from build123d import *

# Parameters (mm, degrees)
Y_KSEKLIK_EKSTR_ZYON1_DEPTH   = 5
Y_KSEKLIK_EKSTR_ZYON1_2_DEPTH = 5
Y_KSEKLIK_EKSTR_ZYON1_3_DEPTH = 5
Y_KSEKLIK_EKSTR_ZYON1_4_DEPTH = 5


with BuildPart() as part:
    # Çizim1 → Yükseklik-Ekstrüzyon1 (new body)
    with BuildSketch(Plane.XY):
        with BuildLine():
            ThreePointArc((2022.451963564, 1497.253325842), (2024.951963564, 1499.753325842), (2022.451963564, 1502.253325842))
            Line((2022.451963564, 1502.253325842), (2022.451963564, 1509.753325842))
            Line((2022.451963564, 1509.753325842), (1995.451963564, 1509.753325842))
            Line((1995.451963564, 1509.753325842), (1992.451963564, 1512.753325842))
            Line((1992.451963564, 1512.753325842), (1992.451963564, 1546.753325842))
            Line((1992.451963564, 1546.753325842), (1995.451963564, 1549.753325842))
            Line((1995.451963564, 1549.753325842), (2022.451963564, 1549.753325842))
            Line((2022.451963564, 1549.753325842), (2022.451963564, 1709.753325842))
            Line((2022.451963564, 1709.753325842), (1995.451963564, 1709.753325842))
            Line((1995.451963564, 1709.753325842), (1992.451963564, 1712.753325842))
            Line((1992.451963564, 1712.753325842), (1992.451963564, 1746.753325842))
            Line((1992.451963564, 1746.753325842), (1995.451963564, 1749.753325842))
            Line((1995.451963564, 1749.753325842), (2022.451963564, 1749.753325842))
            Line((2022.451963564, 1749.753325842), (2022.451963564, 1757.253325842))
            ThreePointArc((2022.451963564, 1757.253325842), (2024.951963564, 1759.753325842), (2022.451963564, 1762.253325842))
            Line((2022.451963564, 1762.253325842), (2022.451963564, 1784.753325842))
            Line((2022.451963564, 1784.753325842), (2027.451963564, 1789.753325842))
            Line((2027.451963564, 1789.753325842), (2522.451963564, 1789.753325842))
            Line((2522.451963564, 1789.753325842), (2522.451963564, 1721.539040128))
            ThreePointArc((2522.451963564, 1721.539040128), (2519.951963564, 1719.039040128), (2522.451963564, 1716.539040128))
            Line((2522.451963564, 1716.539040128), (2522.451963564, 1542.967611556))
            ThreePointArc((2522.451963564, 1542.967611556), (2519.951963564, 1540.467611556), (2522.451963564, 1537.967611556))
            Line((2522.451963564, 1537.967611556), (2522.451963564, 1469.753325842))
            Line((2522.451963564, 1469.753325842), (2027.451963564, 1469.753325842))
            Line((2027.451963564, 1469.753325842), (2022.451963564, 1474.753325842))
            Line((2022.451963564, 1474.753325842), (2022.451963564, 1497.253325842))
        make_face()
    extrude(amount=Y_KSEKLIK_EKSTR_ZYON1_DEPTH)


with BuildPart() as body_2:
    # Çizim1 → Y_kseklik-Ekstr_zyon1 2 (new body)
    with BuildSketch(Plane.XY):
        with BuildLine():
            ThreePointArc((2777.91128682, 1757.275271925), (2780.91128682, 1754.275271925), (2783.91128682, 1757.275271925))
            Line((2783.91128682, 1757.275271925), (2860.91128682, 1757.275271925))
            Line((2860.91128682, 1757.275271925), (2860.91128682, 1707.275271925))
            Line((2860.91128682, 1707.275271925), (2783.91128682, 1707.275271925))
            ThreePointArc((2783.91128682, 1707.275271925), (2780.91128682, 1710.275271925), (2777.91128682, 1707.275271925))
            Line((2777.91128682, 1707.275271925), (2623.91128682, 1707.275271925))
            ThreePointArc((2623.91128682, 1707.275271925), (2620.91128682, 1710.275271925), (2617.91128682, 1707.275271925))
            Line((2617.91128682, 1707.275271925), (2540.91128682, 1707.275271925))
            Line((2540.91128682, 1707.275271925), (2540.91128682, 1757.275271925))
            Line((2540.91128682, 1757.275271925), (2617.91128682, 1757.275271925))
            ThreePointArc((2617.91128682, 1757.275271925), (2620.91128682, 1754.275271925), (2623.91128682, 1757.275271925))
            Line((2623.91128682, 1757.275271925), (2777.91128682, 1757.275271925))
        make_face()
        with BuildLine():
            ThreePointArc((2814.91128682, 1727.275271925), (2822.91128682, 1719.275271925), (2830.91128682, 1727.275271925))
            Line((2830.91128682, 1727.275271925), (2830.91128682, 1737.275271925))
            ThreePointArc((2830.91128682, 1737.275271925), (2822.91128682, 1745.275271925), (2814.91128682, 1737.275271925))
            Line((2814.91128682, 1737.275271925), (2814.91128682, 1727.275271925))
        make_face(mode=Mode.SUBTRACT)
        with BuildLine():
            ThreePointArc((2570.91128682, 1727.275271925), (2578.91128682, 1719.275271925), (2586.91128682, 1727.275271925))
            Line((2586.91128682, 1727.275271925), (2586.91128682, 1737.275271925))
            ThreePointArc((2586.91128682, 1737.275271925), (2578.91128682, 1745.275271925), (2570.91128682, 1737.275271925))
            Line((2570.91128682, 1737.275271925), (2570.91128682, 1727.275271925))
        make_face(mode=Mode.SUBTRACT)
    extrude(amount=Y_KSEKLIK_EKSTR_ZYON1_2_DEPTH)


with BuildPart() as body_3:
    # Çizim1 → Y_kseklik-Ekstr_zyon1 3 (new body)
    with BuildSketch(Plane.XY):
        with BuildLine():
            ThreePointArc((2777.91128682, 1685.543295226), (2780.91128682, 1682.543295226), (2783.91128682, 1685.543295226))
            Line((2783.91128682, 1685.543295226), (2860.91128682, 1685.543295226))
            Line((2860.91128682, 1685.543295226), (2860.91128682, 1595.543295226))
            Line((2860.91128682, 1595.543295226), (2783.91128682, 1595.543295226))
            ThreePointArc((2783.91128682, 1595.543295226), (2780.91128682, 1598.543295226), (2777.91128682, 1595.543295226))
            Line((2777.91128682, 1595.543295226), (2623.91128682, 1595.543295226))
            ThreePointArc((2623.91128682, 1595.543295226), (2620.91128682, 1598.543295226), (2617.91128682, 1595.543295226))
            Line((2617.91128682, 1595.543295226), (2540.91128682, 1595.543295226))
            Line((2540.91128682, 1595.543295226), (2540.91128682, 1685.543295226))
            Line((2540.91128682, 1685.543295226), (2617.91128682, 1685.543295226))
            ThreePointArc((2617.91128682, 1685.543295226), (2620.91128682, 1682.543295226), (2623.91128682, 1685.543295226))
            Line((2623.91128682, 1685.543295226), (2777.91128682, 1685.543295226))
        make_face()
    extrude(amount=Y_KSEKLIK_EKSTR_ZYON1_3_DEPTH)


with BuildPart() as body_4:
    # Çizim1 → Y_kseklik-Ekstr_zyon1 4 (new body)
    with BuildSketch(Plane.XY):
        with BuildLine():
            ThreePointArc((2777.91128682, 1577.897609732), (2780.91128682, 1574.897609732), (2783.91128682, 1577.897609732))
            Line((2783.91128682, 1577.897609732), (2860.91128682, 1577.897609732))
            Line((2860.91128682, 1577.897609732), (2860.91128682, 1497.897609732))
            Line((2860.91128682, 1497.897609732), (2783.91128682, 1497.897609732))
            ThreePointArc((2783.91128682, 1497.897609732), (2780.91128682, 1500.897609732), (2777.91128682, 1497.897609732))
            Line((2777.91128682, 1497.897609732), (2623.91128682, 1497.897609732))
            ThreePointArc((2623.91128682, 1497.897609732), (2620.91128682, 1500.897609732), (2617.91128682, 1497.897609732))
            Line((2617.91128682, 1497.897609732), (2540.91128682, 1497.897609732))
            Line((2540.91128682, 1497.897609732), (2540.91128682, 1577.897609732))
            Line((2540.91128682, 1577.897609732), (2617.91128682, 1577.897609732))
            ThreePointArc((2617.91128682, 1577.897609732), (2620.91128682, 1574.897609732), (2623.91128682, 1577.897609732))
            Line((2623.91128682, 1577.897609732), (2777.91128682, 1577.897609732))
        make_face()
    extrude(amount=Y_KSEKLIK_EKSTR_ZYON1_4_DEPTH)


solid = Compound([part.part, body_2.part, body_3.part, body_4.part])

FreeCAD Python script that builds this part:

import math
import FreeCAD as App
import Part
import Sketcher
Q = App.Units.Quantity

doc = App.newDocument("Part")
body = doc.addObject("PartDesign::Body", "Body")

sketch1 = body.newObject("Sketcher::SketchObject", "Sketch")
sketch1.AttachmentSupport = (doc.getObject("XY_Plane"), [""])
sketch1.MapMode = "FlatFace"
sketch1.addGeometry([
    Part.ArcOfCircle(Part.Circle(App.Vector(2022.5, 1499.8, 0), App.Vector(0, 0, 1), 2.5), math.radians(-90), math.radians(90)),
    Part.LineSegment(App.Vector(2022.5, 1497.3, 0), App.Vector(2022.5, 1474.8, 0)),
    Part.LineSegment(App.Vector(2022.5, 1474.8, 0), App.Vector(2027.5, 1469.8, 0)),
    Part.LineSegment(App.Vector(2027.5, 1469.8, 0), App.Vector(2522.5, 1469.8, 0)),
    Part.LineSegment(App.Vector(2522.5, 1469.8, 0), App.Vector(2522.5, 1538, 0)),
    Part.ArcOfCircle(Part.Circle(App.Vector(2522.5, 1540.5, 0), App.Vector(0, 0, 1), 2.5), math.radians(90), math.radians(270)),
    Part.LineSegment(App.Vector(2522.5, 1543, 0), App.Vector(2522.5, 1716.5, 0)),
    Part.ArcOfCircle(Part.Circle(App.Vector(2522.5, 1719, 0), App.Vector(0, 0, 1), 2.5), math.radians(90), math.radians(270)),
    Part.LineSegment(App.Vector(2522.5, 1721.5, 0), App.Vector(2522.5, 1789.8, 0)),
    Part.LineSegment(App.Vector(2522.5, 1789.8, 0), App.Vector(2027.5, 1789.8, 0)),
    Part.LineSegment(App.Vector(2027.5, 1789.8, 0), App.Vector(2022.5, 1784.8, 0)),
    Part.LineSegment(App.Vector(2022.5, 1784.8, 0), App.Vector(2022.5, 1762.3, 0)),
    Part.ArcOfCircle(Part.Circle(App.Vector(2022.5, 1759.8, 0), App.Vector(0, 0, 1), 2.5), math.radians(-90), math.radians(90)),
    Part.LineSegment(App.Vector(2022.5, 1757.3, 0), App.Vector(2022.5, 1749.8, 0)),
    Part.LineSegment(App.Vector(2022.5, 1749.8, 0), App.Vector(1995.5, 1749.8, 0)),
    Part.LineSegment(App.Vector(1995.5, 1749.8, 0), App.Vector(1992.5, 1746.8, 0)),
    Part.LineSegment(App.Vector(1992.5, 1746.8, 0), App.Vector(1992.5, 1712.8, 0)),
    Part.LineSegment(App.Vector(1992.5, 1712.8, 0), App.Vector(1995.5, 1709.8, 0)),
    Part.LineSegment(App.Vector(1995.5, 1709.8, 0), App.Vector(2022.5, 1709.8, 0)),
    Part.LineSegment(App.Vector(2022.5, 1709.8, 0), App.Vector(2022.5, 1549.8, 0)),
    Part.LineSegment(App.Vector(2022.5, 1549.8, 0), App.Vector(1995.5, 1549.8, 0)),
    Part.LineSegment(App.Vector(1995.5, 1549.8, 0), App.Vector(1992.5, 1546.8, 0)),
    Part.LineSegment(App.Vector(1992.5, 1546.8, 0), App.Vector(1992.5, 1512.8, 0)),
    Part.LineSegment(App.Vector(1992.5, 1512.8, 0), App.Vector(1995.5, 1509.8, 0)),
    Part.LineSegment(App.Vector(1995.5, 1509.8, 0), App.Vector(2022.5, 1509.8, 0)),
    Part.LineSegment(App.Vector(2022.5, 1509.8, 0), App.Vector(2022.5, 1502.3, 0)),
], False)
sketch1.addConstraint([
    Sketcher.Constraint("Coincident", 0, 1, 1, 1),
    Sketcher.Constraint("Coincident", 1, 2, 2, 1),
    Sketcher.Constraint("Coincident", 2, 2, 3, 1),
    Sketcher.Constraint("Coincident", 3, 2, 4, 1),
    Sketcher.Constraint("Coincident", 4, 2, 5, 2),
    Sketcher.Constraint("Coincident", 5, 1, 6, 1),
    Sketcher.Constraint("Coincident", 6, 2, 7, 2),
    Sketcher.Constraint("Coincident", 7, 1, 8, 1),
    Sketcher.Constraint("Coincident", 8, 2, 9, 1),
    Sketcher.Constraint("Coincident", 9, 2, 10, 1),
    Sketcher.Constraint("Coincident", 10, 2, 11, 1),
    Sketcher.Constraint("Coincident", 11, 2, 12, 2),
    Sketcher.Constraint("Coincident", 12, 1, 13, 1),
    Sketcher.Constraint("Coincident", 13, 2, 14, 1),
    Sketcher.Constraint("Coincident", 14, 2, 15, 1),
    Sketcher.Constraint("Coincident", 15, 2, 16, 1),
    Sketcher.Constraint("Coincident", 16, 2, 17, 1),
    Sketcher.Constraint("Coincident", 17, 2, 18, 1),
    Sketcher.Constraint("Coincident", 18, 2, 19, 1),
    Sketcher.Constraint("Coincident", 19, 2, 20, 1),
    Sketcher.Constraint("Coincident", 20, 2, 21, 1),
    Sketcher.Constraint("Coincident", 21, 2, 22, 1),
    Sketcher.Constraint("Coincident", 22, 2, 23, 1),
    Sketcher.Constraint("Coincident", 23, 2, 24, 1),
    Sketcher.Constraint("Coincident", 24, 2, 25, 1),
    Sketcher.Constraint("Coincident", 25, 2, 0, 2),
    Sketcher.Constraint("Vertical", 1),
    Sketcher.Constraint("Horizontal", 3),
    Sketcher.Constraint("Vertical", 4),
    Sketcher.Constraint("Vertical", 6),
    Sketcher.Constraint("Vertical", 8),
    Sketcher.Constraint("Horizontal", 9),
    Sketcher.Constraint("Vertical", 11),
    Sketcher.Constraint("Vertical", 13),
    Sketcher.Constraint("Horizontal", 14),
    Sketcher.Constraint("Vertical", 16),
    Sketcher.Constraint("Horizontal", 18),
    Sketcher.Constraint("Vertical", 19),
    Sketcher.Constraint("Horizontal", 20),
    Sketcher.Constraint("Vertical", 22),
    Sketcher.Constraint("Horizontal", 24),
    Sketcher.Constraint("Vertical", 25),
    Sketcher.Constraint("Equal", 0, 5),
    Sketcher.Constraint("Equal", 5, 7),
    Sketcher.Constraint("Equal", 7, 12),
    Sketcher.Constraint("Perpendicular", 2, 10),
    Sketcher.Constraint("Parallel", 10, 15),
    Sketcher.Constraint("Perpendicular", 15, 17),
    Sketcher.Constraint("Perpendicular", 17, 21),
    Sketcher.Constraint("Perpendicular", 21, 23),
    Sketcher.Constraint("Vertical", 5, 3, 7, 3),
    Sketcher.Constraint("Vertical", 0, 3, 12, 3),
    Sketcher.Constraint("Vertical", 12, 3, 0, 1),
    Sketcher.Constraint("Vertical", 7, 3, 3, 2),
    Sketcher.Constraint("Vertical", 4, 2, 5, 1),
    Sketcher.Constraint("Vertical", 6, 2, 7, 1),
    Sketcher.Constraint("Vertical", 2, 2, 9, 2),
    Sketcher.Constraint("Vertical", 1, 2, 10, 2),
    Sketcher.Constraint("Vertical", 11, 2, 12, 1),
    Sketcher.Constraint("Vertical", 14, 2, 17, 2),
    Sketcher.Constraint("Vertical", 13, 2, 18, 2),
    Sketcher.Constraint("Vertical", 17, 2, 20, 2),
    Sketcher.Constraint("Vertical", 16, 2, 21, 2),
    Sketcher.Constraint("Vertical", 20, 2, 23, 2),
    Sketcher.Constraint("Vertical", 19, 2, 24, 2),
    Sketcher.Constraint("Equal", 4, 8),
    Sketcher.Constraint("Equal", 1, 11),
    Sketcher.Constraint("Equal", 16, 22),
    Sketcher.Constraint("Equal", 13, 25),
    Sketcher.Constraint("Equal", 2, 10),
    Sketcher.Constraint("Radius", 0, Q("2.5 mm")),
    Sketcher.Constraint("DistanceX", 3, 1, 3, 2, Q("495 mm")),
    Sketcher.Constraint("DistanceX", 14, 2, 14, 1, Q("27 mm")),
    Sketcher.Constraint("DistanceY", 16, 2, 16, 1, Q("34 mm")),
    Sketcher.Constraint("DistanceY", 19, 2, 19, 1, Q("160 mm")),
    Sketcher.Constraint("DistanceY", 1, 2, 1, 1, Q("22.5 mm")),
    Sketcher.Constraint("DistanceY", 13, 2, 13, 1, Q("7.5 mm")),
    Sketcher.Constraint("DistanceX", 0, 3, 5, 3, Q("500 mm")),
    Sketcher.Constraint("DistanceY", 0, 3, 12, 3, Q("260 mm")),
    Sketcher.Constraint("DistanceY", 6, 1, 6, 2, Q("173.571429 mm")),
    Sketcher.Constraint("DistanceY", -1, 1, 5, 3, Q("1540.467612 mm")),
    Sketcher.Constraint("DistanceX", -1, 1, 0, 3, Q("2022.451964 mm")),
])
pad1 = body.newObject("PartDesign::Pad", "Pad")
pad1.Profile = sketch1
pad1.Length = 5
body2 = doc.addObject("PartDesign::Body", "Body001")

sketch2 = body2.newObject("Sketcher::SketchObject", "Sketch001")
sketch2.AttachmentSupport = (doc.getObject("XY_Plane001"), [""])
sketch2.MapMode = "FlatFace"
sketch2.addGeometry([
    Part.ArcOfCircle(Part.Circle(App.Vector(2780.9, 1757.3, 0), App.Vector(0, 0, 1), 3), math.radians(180), math.radians(360)),
    Part.LineSegment(App.Vector(2777.9, 1757.3, 0), App.Vector(2623.9, 1757.3, 0)),
    Part.ArcOfCircle(Part.Circle(App.Vector(2620.9, 1757.3, 0), App.Vector(0, 0, 1), 3), math.radians(180), math.radians(360)),
    Part.LineSegment(App.Vector(2617.9, 1757.3, 0), App.Vector(2540.9, 1757.3, 0)),
    Part.LineSegment(App.Vector(2540.9, 1757.3, 0), App.Vector(2540.9, 1707.3, 0)),
    Part.LineSegment(App.Vector(2540.9, 1707.3, 0), App.Vector(2617.9, 1707.3, 0)),
    Part.ArcOfCircle(Part.Circle(App.Vector(2620.9, 1707.3, 0), App.Vector(0, 0, 1), 3), math.radians(0), math.radians(180)),
    Part.LineSegment(App.Vector(2623.9, 1707.3, 0), App.Vector(2777.9, 1707.3, 0)),
    Part.ArcOfCircle(Part.Circle(App.Vector(2780.9, 1707.3, 0), App.Vector(0, 0, 1), 3), math.radians(0), math.radians(180)),
    Part.LineSegment(App.Vector(2783.9, 1707.3, 0), App.Vector(2860.9, 1707.3, 0)),
    Part.LineSegment(App.Vector(2860.9, 1707.3, 0), App.Vector(2860.9, 1757.3, 0)),
    Part.LineSegment(App.Vector(2860.9, 1757.3, 0), App.Vector(2783.9, 1757.3, 0)),
    Part.LineSegment(App.Vector(2814.9, 1727.3, 0), App.Vector(2814.9, 1737.3, 0)),
    Part.ArcOfCircle(Part.Circle(App.Vector(2822.9, 1737.3, 0), App.Vector(0, 0, 1), 8), math.radians(0), math.radians(180)),
    Part.LineSegment(App.Vector(2830.9, 1737.3, 0), App.Vector(2830.9, 1727.3, 0)),
    Part.ArcOfCircle(Part.Circle(App.Vector(2822.9, 1727.3, 0), App.Vector(0, 0, 1), 8), math.radians(180), math.radians(360)),
    Part.LineSegment(App.Vector(2570.9, 1727.3, 0), App.Vector(2570.9, 1737.3, 0)),
    Part.ArcOfCircle(Part.Circle(App.Vector(2578.9, 1737.3, 0), App.Vector(0, 0, 1), 8), math.radians(0), math.radians(180)),
    Part.LineSegment(App.Vector(2586.9, 1737.3, 0), App.Vector(2586.9, 1727.3, 0)),
    Part.ArcOfCircle(Part.Circle(App.Vector(2578.9, 1727.3, 0), App.Vector(0, 0, 1), 8), math.radians(180), math.radians(360)),
], False)
sketch2.addConstraint([
    Sketcher.Constraint("Coincident", 0, 1, 1, 1),
    Sketcher.Constraint("Coincident", 1, 2, 2, 2),
    Sketcher.Constraint("Coincident", 2, 1, 3, 1),
    Sketcher.Constraint("Coincident", 3, 2, 4, 1),
    Sketcher.Constraint("Coincident", 4, 2, 5, 1),
    Sketcher.Constraint("Coincident", 5, 2, 6, 2),
    Sketcher.Constraint("Coincident", 6, 1, 7, 1),
    Sketcher.Constraint("Coincident", 7, 2, 8, 2),
    Sketcher.Constraint("Coincident", 8, 1, 9, 1),
    Sketcher.Constraint("Coincident", 9, 2, 10, 1),
    Sketcher.Constraint("Coincident", 10, 2, 11, 1),
    Sketcher.Constraint("Coincident", 11, 2, 0, 2),
    Sketcher.Constraint("Tangent", 12, 2, 13, 2),
    Sketcher.Constraint("Tangent", 13, 1, 14, 1),
    Sketcher.Constraint("Tangent", 14, 2, 15, 2),
    Sketcher.Constraint("Tangent", 15, 1, 12, 1),
    Sketcher.Constraint("Tangent", 16, 2, 17, 2),
    Sketcher.Constraint("Tangent", 17, 1, 18, 1),
    Sketcher.Constraint("Tangent", 18, 2, 19, 2),
    Sketcher.Constraint("Tangent", 19, 1, 16, 1),
    Sketcher.Constraint("Horizontal", 1),
    Sketcher.Constraint("Horizontal", 3),
    Sketcher.Constraint("Vertical", 4),
    Sketcher.Constraint("Horizontal", 5),
    Sketcher.Constraint("Horizontal", 7),
    Sketcher.Constraint("Horizontal", 9),
    Sketcher.Constraint("Vertical", 10),
    Sketcher.Constraint("Horizontal", 11),
    Sketcher.Constraint("Vertical", 12),
    Sketcher.Constraint("Vertical", 14),
    Sketcher.Constraint("Vertical", 16),
    Sketcher.Constraint("Vertical", 18),
    Sketcher.Constraint("Equal", 0, 2),
    Sketcher.Constraint("Equal", 2, 6),
    Sketcher.Constraint("Equal", 6, 8),
    Sketcher.Constraint("Equal", 15, 17),
    Sketcher.Constraint("Horizontal", 0, 3, 2, 3),
    Sketcher.Constraint("Horizontal", 6, 3, 8, 3),
    Sketcher.Constraint("Horizontal", 13, 3, 17, 3),
    Sketcher.Constraint("Horizontal", 15, 3, 19, 3),
    Sketcher.Constraint("Horizontal", 2, 3, 0, 1),
    Sketcher.Constraint("Horizontal", 1, 2, 2, 1),
    Sketcher.Constraint("Horizontal", 8, 3, 4, 2),
    Sketcher.Constraint("Horizontal", 5, 2, 6, 1),
    Sketcher.Constraint("Horizontal", 7, 2, 8, 1),
    Sketcher.Constraint("Horizontal", 3, 2, 10, 2),
    Sketcher.Constraint("Vertical", 2, 3, 6, 3),
    Sketcher.Constraint("Vertical", 0, 3, 8, 3),
    Sketcher.Constraint("Equal", 5, 9),
    Sketcher.Constraint("Radius", 0, Q("3 mm")),
    Sketcher.Constraint("Radius", 13, Q("8 mm")),
    Sketcher.Constraint("DistanceX", 1, 2, 1, 1, Q("154 mm")),
    Sketcher.Constraint("DistanceX", 3, 2, 3, 1, Q("77 mm")),
    Sketcher.Constraint("DistanceY", 4, 2, 4, 1, Q("50 mm")),
    Sketcher.Constraint("DistanceY", 12, 1, 12, 2, Q("10 mm")),
    Sketcher.Constraint("DistanceX", 0, 3, 13, 3, Q("42 mm")),
    Sketcher.Constraint("DistanceY", 13, 3, 0, 3, Q("20 mm")),
    Sketcher.Constraint("DistanceX", 17, 3, 2, 3, Q("42 mm")),
    Sketcher.Constraint("DistanceY", -1, 1, 0, 3, Q("1757.275272 mm")),
    Sketcher.Constraint("DistanceX", -1, 1, 0, 3, Q("2780.911287 mm")),
])
pad2 = body2.newObject("PartDesign::Pad", "Pad001")
pad2.Profile = sketch2
pad2.Length = 5
body3 = doc.addObject("PartDesign::Body", "Body002")

sketch3 = body3.newObject("Sketcher::SketchObject", "Sketch002")
sketch3.AttachmentSupport = (doc.getObject("XY_Plane002"), [""])
sketch3.MapMode = "FlatFace"
sketch3.addGeometry([
    Part.ArcOfCircle(Part.Circle(App.Vector(2780.9, 1685.5, 0), App.Vector(0, 0, 1), 3), math.radians(180), math.radians(360)),
    Part.LineSegment(App.Vector(2777.9, 1685.5, 0), App.Vector(2623.9, 1685.5, 0)),
    Part.ArcOfCircle(Part.Circle(App.Vector(2620.9, 1685.5, 0), App.Vector(0, 0, 1), 3), math.radians(180), math.radians(360)),
    Part.LineSegment(App.Vector(2617.9, 1685.5, 0), App.Vector(2540.9, 1685.5, 0)),
    Part.LineSegment(App.Vector(2540.9, 1685.5, 0), App.Vector(2540.9, 1595.5, 0)),
    Part.LineSegment(App.Vector(2540.9, 1595.5, 0), App.Vector(2617.9, 1595.5, 0)),
    Part.ArcOfCircle(Part.Circle(App.Vector(2620.9, 1595.5, 0), App.Vector(0, 0, 1), 3), math.radians(0), math.radians(180)),
    Part.LineSegment(App.Vector(2623.9, 1595.5, 0), App.Vector(2777.9, 1595.5, 0)),
    Part.ArcOfCircle(Part.Circle(App.Vector(2780.9, 1595.5, 0), App.Vector(0, 0, 1), 3), math.radians(0), math.radians(180)),
    Part.LineSegment(App.Vector(2783.9, 1595.5, 0), App.Vector(2860.9, 1595.5, 0)),
    Part.LineSegment(App.Vector(2860.9, 1595.5, 0), App.Vector(2860.9, 1685.5, 0)),
    Part.LineSegment(App.Vector(2860.9, 1685.5, 0), App.Vector(2783.9, 1685.5, 0)),
], False)
sketch3.addConstraint([
    Sketcher.Constraint("Coincident", 0, 1, 1, 1),
    Sketcher.Constraint("Coincident", 1, 2, 2, 2),
    Sketcher.Constraint("Coincident", 2, 1, 3, 1),
    Sketcher.Constraint("Coincident", 3, 2, 4, 1),
    Sketcher.Constraint("Coincident", 4, 2, 5, 1),
    Sketcher.Constraint("Coincident", 5, 2, 6, 2),
    Sketcher.Constraint("Coincident", 6, 1, 7, 1),
    Sketcher.Constraint("Coincident", 7, 2, 8, 2),
    Sketcher.Constraint("Coincident", 8, 1, 9, 1),
    Sketcher.Constraint("Coincident", 9, 2, 10, 1),
    Sketcher.Constraint("Coincident", 10, 2, 11, 1),
    Sketcher.Constraint("Coincident", 11, 2, 0, 2),
    Sketcher.Constraint("Horizontal", 1),
    Sketcher.Constraint("Horizontal", 3),
    Sketcher.Constraint("Vertical", 4),
    Sketcher.Constraint("Horizontal", 5),
    Sketcher.Constraint("Horizontal", 7),
    Sketcher.Constraint("Horizontal", 9),
    Sketcher.Constraint("Vertical", 10),
    Sketcher.Constraint("Horizontal", 11),
    Sketcher.Constraint("Equal", 0, 2),
    Sketcher.Constraint("Equal", 2, 6),
    Sketcher.Constraint("Equal", 6, 8),
    Sketcher.Constraint("Horizontal", 0, 3, 2, 3),
    Sketcher.Constraint("Horizontal", 6, 3, 8, 3),
    Sketcher.Constraint("Horizontal", 2, 3, 0, 1),
    Sketcher.Constraint("Horizontal", 1, 2, 2, 1),
    Sketcher.Constraint("Horizontal", 8, 3, 4, 2),
    Sketcher.Constraint("Horizontal", 5, 2, 6, 1),
    Sketcher.Constraint("Horizontal", 7, 2, 8, 1),
    Sketcher.Constraint("Horizontal", 3, 2, 10, 2),
    Sketcher.Constraint("Vertical", 2, 3, 6, 3),
    Sketcher.Constraint("Vertical", 0, 3, 8, 3),
    Sketcher.Constraint("Equal", 5, 9),
    Sketcher.Constraint("Radius", 0, Q("3 mm")),
    Sketcher.Constraint("DistanceX", 1, 2, 1, 1, Q("154 mm")),
    Sketcher.Constraint("DistanceX", 3, 2, 3, 1, Q("77 mm")),
    Sketcher.Constraint("DistanceY", 4, 2, 4, 1, Q("90 mm")),
    Sketcher.Constraint("DistanceX", -1, 1, 0, 3, Q("2780.911287 mm")),
    Sketcher.Constraint("DistanceY", -1, 1, 0, 3, Q("1685.543295 mm")),
])
pad3 = body3.newObject("PartDesign::Pad", "Pad002")
pad3.Profile = sketch3
pad3.Length = 5
body4 = doc.addObject("PartDesign::Body", "Body003")

sketch4 = body4.newObject("Sketcher::SketchObject", "Sketch003")
sketch4.AttachmentSupport = (doc.getObject("XY_Plane003"), [""])
sketch4.MapMode = "FlatFace"
sketch4.addGeometry([
    Part.ArcOfCircle(Part.Circle(App.Vector(2780.9, 1577.9, 0), App.Vector(0, 0, 1), 3), math.radians(180), math.radians(360)),
    Part.LineSegment(App.Vector(2777.9, 1577.9, 0), App.Vector(2623.9, 1577.9, 0)),
    Part.ArcOfCircle(Part.Circle(App.Vector(2620.9, 1577.9, 0), App.Vector(0, 0, 1), 3), math.radians(180), math.radians(360)),
    Part.LineSegment(App.Vector(2617.9, 1577.9, 0), App.Vector(2540.9, 1577.9, 0)),
    Part.LineSegment(App.Vector(2540.9, 1577.9, 0), App.Vector(2540.9, 1497.9, 0)),
    Part.LineSegment(App.Vector(2540.9, 1497.9, 0), App.Vector(2617.9, 1497.9, 0)),
    Part.ArcOfCircle(Part.Circle(App.Vector(2620.9, 1497.9, 0), App.Vector(0, 0, 1), 3), math.radians(0), math.radians(180)),
    Part.LineSegment(App.Vector(2623.9, 1497.9, 0), App.Vector(2777.9, 1497.9, 0)),
    Part.ArcOfCircle(Part.Circle(App.Vector(2780.9, 1497.9, 0), App.Vector(0, 0, 1), 3), math.radians(0), math.radians(180)),
    Part.LineSegment(App.Vector(2783.9, 1497.9, 0), App.Vector(2860.9, 1497.9, 0)),
    Part.LineSegment(App.Vector(2860.9, 1497.9, 0), App.Vector(2860.9, 1577.9, 0)),
    Part.LineSegment(App.Vector(2860.9, 1577.9, 0), App.Vector(2783.9, 1577.9, 0)),
], False)
sketch4.addConstraint([
    Sketcher.Constraint("Coincident", 0, 1, 1, 1),
    Sketcher.Constraint("Coincident", 1, 2, 2, 2),
    Sketcher.Constraint("Coincident", 2, 1, 3, 1),
    Sketcher.Constraint("Coincident", 3, 2, 4, 1),
    Sketcher.Constraint("Coincident", 4, 2, 5, 1),
    Sketcher.Constraint("Coincident", 5, 2, 6, 2),
    Sketcher.Constraint("Coincident", 6, 1, 7, 1),
    Sketcher.Constraint("Coincident", 7, 2, 8, 2),
    Sketcher.Constraint("Coincident", 8, 1, 9, 1),
    Sketcher.Constraint("Coincident", 9, 2, 10, 1),
    Sketcher.Constraint("Coincident", 10, 2, 11, 1),
    Sketcher.Constraint("Coincident", 11, 2, 0, 2),
    Sketcher.Constraint("Horizontal", 1),
    Sketcher.Constraint("Horizontal", 3),
    Sketcher.Constraint("Vertical", 4),
    Sketcher.Constraint("Horizontal", 5),
    Sketcher.Constraint("Horizontal", 7),
    Sketcher.Constraint("Horizontal", 9),
    Sketcher.Constraint("Vertical", 10),
    Sketcher.Constraint("Horizontal", 11),
    Sketcher.Constraint("Equal", 0, 2),
    Sketcher.Constraint("Equal", 2, 6),
    Sketcher.Constraint("Equal", 6, 8),
    Sketcher.Constraint("Horizontal", 0, 3, 2, 3),
    Sketcher.Constraint("Horizontal", 6, 3, 8, 3),
    Sketcher.Constraint("Horizontal", 2, 3, 0, 1),
    Sketcher.Constraint("Horizontal", 1, 2, 2, 1),
    Sketcher.Constraint("Horizontal", 8, 3, 4, 2),
    Sketcher.Constraint("Horizontal", 5, 2, 6, 1),
    Sketcher.Constraint("Horizontal", 7, 2, 8, 1),
    Sketcher.Constraint("Horizontal", 3, 2, 10, 2),
    Sketcher.Constraint("Vertical", 2, 3, 6, 3),
    Sketcher.Constraint("Vertical", 0, 3, 8, 3),
    Sketcher.Constraint("Equal", 5, 9),
    Sketcher.Constraint("Radius", 0, Q("3 mm")),
    Sketcher.Constraint("DistanceX", 1, 2, 1, 1, Q("154 mm")),
    Sketcher.Constraint("DistanceX", 3, 2, 3, 1, Q("77 mm")),
    Sketcher.Constraint("DistanceY", 4, 2, 4, 1, Q("80 mm")),
    Sketcher.Constraint("DistanceY", -1, 1, 0, 3, Q("1577.89761 mm")),
    Sketcher.Constraint("DistanceX", -1, 1, 0, 3, Q("2780.911287 mm")),
])
pad4 = body4.newObject("PartDesign::Pad", "Pad003")
pad4.Profile = sketch4
pad4.Length = 5

doc.recompute()
